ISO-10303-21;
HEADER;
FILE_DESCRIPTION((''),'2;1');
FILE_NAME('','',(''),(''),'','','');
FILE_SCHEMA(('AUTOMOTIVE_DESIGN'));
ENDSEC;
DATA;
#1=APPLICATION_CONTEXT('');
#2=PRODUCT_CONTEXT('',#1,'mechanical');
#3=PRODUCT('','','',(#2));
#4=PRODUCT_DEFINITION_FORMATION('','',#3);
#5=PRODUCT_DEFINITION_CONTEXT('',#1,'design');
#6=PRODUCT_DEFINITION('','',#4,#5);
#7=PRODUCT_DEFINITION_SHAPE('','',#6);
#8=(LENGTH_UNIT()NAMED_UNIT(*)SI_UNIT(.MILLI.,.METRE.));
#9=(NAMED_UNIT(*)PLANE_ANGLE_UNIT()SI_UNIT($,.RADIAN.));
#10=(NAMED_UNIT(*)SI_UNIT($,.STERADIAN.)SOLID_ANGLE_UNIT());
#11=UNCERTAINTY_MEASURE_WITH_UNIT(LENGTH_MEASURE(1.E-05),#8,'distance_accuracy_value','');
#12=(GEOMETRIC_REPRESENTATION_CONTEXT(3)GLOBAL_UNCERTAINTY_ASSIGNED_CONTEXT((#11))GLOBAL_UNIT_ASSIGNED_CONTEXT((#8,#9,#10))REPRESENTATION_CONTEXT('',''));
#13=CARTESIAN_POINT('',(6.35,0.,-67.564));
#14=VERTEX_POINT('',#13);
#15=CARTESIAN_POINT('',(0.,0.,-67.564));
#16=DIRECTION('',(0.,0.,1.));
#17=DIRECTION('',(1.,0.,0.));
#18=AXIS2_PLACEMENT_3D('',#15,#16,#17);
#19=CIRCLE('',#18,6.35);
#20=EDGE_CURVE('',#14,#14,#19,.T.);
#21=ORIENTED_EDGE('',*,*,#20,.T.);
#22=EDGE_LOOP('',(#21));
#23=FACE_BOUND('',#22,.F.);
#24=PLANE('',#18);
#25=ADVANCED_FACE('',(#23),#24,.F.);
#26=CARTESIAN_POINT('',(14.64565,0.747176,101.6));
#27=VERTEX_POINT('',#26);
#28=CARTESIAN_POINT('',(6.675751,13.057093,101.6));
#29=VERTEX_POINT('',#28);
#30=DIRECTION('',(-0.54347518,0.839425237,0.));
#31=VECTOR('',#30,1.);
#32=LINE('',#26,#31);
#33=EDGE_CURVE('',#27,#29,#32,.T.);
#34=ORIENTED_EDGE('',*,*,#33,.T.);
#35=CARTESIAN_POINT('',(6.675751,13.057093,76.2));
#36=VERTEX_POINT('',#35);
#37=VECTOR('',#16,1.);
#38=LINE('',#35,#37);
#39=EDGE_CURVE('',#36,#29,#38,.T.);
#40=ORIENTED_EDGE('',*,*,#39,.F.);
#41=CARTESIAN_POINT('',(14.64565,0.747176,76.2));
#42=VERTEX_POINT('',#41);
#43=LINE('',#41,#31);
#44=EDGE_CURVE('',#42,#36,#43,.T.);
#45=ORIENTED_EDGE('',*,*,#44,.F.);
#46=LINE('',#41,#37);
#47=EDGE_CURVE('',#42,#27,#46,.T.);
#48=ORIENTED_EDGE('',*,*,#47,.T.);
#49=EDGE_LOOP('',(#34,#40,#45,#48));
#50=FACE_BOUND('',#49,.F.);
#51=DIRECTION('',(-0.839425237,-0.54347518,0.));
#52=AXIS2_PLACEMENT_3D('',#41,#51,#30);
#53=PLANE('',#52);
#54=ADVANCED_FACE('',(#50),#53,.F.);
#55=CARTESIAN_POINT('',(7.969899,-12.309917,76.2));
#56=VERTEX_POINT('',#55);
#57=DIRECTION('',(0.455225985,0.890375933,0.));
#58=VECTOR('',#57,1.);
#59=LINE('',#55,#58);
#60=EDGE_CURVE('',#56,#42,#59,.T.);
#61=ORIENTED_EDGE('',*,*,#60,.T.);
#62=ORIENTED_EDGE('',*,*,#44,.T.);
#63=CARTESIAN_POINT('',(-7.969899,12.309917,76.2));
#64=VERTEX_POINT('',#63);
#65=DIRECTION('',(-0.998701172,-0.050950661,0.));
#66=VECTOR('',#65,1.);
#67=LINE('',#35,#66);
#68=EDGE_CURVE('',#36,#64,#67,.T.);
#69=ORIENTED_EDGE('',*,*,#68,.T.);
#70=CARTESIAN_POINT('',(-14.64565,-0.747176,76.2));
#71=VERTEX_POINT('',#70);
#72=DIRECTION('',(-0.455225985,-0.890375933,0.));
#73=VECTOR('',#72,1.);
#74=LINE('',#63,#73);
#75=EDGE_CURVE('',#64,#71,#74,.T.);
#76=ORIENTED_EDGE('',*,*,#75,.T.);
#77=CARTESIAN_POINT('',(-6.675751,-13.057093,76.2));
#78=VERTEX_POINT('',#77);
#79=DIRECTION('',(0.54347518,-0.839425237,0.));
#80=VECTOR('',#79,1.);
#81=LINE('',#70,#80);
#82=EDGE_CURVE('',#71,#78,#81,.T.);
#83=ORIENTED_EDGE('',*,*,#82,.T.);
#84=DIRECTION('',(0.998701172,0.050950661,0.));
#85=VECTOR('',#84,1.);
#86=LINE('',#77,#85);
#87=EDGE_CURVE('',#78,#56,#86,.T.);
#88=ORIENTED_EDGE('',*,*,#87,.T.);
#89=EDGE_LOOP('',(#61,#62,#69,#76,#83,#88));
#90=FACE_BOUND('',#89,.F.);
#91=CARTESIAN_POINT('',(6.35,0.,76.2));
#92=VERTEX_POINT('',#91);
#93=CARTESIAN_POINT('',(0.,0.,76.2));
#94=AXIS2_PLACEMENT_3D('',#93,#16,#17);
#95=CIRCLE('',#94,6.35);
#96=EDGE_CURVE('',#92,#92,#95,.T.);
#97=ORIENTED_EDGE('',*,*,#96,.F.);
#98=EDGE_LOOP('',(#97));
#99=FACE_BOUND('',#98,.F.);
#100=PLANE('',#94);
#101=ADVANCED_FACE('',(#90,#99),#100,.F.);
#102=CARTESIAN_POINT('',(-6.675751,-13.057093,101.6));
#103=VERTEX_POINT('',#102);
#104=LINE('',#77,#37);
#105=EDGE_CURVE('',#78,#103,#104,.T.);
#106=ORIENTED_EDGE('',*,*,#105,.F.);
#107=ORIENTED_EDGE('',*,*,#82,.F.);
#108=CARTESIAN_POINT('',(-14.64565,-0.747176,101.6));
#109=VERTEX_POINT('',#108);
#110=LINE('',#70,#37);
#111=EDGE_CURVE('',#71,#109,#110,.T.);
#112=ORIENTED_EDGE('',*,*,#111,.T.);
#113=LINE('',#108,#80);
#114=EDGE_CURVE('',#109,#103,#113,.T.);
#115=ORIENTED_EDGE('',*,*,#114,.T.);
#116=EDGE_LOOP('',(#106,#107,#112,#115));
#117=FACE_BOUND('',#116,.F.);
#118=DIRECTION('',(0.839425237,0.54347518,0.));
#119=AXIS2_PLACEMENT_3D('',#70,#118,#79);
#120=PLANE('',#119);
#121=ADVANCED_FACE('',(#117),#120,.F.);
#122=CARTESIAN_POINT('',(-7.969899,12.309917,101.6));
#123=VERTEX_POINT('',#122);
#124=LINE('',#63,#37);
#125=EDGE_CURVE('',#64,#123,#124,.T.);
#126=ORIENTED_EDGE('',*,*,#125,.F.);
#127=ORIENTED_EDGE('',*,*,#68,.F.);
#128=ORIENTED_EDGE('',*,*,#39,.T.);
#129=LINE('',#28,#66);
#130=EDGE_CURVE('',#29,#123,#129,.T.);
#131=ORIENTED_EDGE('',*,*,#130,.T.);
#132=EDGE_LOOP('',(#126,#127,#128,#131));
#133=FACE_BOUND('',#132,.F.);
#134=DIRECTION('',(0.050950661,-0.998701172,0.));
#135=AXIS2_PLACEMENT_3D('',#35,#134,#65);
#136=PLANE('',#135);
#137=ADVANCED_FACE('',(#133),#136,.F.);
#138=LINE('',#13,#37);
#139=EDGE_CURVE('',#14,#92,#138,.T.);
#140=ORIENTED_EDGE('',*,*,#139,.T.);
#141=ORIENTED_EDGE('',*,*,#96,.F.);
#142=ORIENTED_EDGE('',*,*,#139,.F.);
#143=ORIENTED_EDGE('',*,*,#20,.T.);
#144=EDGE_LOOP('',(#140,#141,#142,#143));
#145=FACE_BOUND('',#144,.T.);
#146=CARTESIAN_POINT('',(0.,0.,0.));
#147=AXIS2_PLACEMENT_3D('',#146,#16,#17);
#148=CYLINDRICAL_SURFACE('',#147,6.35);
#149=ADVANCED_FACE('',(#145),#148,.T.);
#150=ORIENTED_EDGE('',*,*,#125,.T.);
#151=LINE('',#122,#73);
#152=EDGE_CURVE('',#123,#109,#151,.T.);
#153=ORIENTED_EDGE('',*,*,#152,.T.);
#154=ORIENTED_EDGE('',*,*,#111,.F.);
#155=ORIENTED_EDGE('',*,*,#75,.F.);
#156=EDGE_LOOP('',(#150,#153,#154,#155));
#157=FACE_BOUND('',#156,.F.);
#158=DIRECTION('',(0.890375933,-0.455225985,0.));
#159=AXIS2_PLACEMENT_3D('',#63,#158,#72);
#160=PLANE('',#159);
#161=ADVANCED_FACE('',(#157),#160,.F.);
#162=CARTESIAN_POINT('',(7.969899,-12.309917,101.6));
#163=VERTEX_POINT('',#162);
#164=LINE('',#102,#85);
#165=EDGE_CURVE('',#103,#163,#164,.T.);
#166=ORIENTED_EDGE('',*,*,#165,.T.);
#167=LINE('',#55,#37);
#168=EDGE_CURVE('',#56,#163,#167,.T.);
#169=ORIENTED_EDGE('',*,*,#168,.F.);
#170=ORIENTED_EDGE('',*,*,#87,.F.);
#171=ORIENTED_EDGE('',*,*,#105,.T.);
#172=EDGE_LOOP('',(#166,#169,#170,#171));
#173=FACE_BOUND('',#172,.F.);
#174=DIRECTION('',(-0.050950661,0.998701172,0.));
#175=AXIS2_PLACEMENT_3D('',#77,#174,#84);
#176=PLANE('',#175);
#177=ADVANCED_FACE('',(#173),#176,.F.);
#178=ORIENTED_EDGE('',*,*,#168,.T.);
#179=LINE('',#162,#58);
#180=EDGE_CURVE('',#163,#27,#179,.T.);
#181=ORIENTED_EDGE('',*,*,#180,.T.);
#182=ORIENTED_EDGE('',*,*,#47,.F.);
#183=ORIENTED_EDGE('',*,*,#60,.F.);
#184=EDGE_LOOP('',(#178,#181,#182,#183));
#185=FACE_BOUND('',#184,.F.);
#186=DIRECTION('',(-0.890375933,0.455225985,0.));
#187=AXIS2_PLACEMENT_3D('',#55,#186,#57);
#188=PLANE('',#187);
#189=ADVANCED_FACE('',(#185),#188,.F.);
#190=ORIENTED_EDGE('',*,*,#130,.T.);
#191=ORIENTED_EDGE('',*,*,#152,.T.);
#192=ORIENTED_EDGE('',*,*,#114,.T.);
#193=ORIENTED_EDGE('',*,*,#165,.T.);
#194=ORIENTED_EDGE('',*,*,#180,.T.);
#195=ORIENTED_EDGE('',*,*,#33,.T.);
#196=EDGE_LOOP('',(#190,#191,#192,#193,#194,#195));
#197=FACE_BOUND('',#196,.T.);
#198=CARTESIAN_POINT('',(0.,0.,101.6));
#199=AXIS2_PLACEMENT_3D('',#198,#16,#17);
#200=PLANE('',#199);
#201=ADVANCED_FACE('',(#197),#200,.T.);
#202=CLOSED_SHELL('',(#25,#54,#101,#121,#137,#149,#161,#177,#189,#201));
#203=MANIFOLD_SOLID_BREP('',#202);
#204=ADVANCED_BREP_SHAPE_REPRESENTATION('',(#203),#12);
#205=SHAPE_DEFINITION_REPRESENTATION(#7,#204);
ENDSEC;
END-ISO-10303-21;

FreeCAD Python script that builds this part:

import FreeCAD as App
import Part
import Sketcher
Q = App.Units.Quantity


def add_polygon(sketch, points):
    """Adds a closed chain of lines whose ends are joined by coincident constraints."""
    first, n = sketch.GeometryCount, len(points)
    for a, b in zip(points, points[1:] + points[:1]):
        sketch.addGeometry(Part.LineSegment(App.Vector(*a, 0), App.Vector(*b, 0)), False)
    for i in range(n):
        sketch.addConstraint(Sketcher.Constraint("Coincident", first + i, 2, first + (i + 1) % n, 1))

doc = App.newDocument("Part")
body = doc.addObject("PartDesign::Body", "Body")

sketch1 = body.newObject("Sketcher::SketchObject", "Sketch")
sketch1.AttachmentSupport = (doc.getObject("XY_Plane"), [""])
sketch1.MapMode = "FlatFace"
sketch1.addGeometry(Part.Circle(App.Vector(0, 0, 0), App.Vector(0, 0, 1), 6), False)
sketch1.addConstraint(Sketcher.Constraint("Coincident", 0, 3, -1, 1))
sketch1.addConstraint(Sketcher.Constraint("Diameter", 0, Q("0.5 in")))
pad1 = body.newObject("PartDesign::Pad", "Pad")
pad1.Profile = sketch1
pad1.Length = Q("3 in")

sketch2 = body.newObject("Sketcher::SketchObject", "Sketch001")
sketch2.AttachmentSupport = (doc.getObject("XY_Plane"), [""])
sketch2.MapMode = "FlatFace"
sketch2.addGeometry(Part.Circle(App.Vector(0, 0, 0), App.Vector(0, 0, 1), 6), False)
sketch2.addConstraint(Sketcher.Constraint("Coincident", 0, 3, -1, 1))
sketch2.addConstraint(Sketcher.Constraint("Diameter", 0, Q("0.5 in")))
pad2 = body.newObject("PartDesign::Pad", "Pad001")
pad2.Profile = sketch2
pad2.Length = Q("2.66 in")
pad2.Reversed = True

sketch3 = body.newObject("Sketcher::SketchObject", "Sketch002")
sketch3.AttachmentSupport = (doc.getObject("XY_Plane"), [""])
sketch3.MapMode = "FlatFace"
sketch3.AttachmentOffset = App.Placement(App.Vector(0, 0, 3 * 25.4), App.Rotation())
add_polygon(sketch3, [(15, 1), (7, 13), (-8, 12), (-15, -1), (-7, -13), (8, -12)])
sketch3.addConstraint(Sketcher.Constraint("Symmetric", 0, 2, 3, 2, -1, 1))
sketch3.addConstraint(Sketcher.Constraint("Symmetric", 1, 2, 4, 2, -1, 1))
sketch3.addConstraint(Sketcher.Constraint("Symmetric", 2, 2, 5, 2, -1, 1))
sketch3.addConstraint(Sketcher.Constraint("Equal", 0, 1))
sketch3.addConstraint(Sketcher.Constraint("Equal", 1, 2))
sketch3.addConstraint(Sketcher.Constraint("DistanceX", 1, 2, -1, 1, Q("7.969899 mm")))
sketch3.addConstraint(Sketcher.Constraint("DistanceX", 2, 2, 0, 2, Q("21.321401 mm")))
sketch3.addConstraint(Sketcher.Constraint("DistanceX", 2, 2, 3, 2, Q("7.969899 mm")))
sketch3.addConstraint(Sketcher.Constraint("DistanceY", 2, 2, 0, 2, Q("13.804269 mm")))
pad3 = body.newObject("PartDesign::Pad", "Pad002")
pad3.Profile = sketch3
pad3.Length = Q("1 in")

doc.recompute()
